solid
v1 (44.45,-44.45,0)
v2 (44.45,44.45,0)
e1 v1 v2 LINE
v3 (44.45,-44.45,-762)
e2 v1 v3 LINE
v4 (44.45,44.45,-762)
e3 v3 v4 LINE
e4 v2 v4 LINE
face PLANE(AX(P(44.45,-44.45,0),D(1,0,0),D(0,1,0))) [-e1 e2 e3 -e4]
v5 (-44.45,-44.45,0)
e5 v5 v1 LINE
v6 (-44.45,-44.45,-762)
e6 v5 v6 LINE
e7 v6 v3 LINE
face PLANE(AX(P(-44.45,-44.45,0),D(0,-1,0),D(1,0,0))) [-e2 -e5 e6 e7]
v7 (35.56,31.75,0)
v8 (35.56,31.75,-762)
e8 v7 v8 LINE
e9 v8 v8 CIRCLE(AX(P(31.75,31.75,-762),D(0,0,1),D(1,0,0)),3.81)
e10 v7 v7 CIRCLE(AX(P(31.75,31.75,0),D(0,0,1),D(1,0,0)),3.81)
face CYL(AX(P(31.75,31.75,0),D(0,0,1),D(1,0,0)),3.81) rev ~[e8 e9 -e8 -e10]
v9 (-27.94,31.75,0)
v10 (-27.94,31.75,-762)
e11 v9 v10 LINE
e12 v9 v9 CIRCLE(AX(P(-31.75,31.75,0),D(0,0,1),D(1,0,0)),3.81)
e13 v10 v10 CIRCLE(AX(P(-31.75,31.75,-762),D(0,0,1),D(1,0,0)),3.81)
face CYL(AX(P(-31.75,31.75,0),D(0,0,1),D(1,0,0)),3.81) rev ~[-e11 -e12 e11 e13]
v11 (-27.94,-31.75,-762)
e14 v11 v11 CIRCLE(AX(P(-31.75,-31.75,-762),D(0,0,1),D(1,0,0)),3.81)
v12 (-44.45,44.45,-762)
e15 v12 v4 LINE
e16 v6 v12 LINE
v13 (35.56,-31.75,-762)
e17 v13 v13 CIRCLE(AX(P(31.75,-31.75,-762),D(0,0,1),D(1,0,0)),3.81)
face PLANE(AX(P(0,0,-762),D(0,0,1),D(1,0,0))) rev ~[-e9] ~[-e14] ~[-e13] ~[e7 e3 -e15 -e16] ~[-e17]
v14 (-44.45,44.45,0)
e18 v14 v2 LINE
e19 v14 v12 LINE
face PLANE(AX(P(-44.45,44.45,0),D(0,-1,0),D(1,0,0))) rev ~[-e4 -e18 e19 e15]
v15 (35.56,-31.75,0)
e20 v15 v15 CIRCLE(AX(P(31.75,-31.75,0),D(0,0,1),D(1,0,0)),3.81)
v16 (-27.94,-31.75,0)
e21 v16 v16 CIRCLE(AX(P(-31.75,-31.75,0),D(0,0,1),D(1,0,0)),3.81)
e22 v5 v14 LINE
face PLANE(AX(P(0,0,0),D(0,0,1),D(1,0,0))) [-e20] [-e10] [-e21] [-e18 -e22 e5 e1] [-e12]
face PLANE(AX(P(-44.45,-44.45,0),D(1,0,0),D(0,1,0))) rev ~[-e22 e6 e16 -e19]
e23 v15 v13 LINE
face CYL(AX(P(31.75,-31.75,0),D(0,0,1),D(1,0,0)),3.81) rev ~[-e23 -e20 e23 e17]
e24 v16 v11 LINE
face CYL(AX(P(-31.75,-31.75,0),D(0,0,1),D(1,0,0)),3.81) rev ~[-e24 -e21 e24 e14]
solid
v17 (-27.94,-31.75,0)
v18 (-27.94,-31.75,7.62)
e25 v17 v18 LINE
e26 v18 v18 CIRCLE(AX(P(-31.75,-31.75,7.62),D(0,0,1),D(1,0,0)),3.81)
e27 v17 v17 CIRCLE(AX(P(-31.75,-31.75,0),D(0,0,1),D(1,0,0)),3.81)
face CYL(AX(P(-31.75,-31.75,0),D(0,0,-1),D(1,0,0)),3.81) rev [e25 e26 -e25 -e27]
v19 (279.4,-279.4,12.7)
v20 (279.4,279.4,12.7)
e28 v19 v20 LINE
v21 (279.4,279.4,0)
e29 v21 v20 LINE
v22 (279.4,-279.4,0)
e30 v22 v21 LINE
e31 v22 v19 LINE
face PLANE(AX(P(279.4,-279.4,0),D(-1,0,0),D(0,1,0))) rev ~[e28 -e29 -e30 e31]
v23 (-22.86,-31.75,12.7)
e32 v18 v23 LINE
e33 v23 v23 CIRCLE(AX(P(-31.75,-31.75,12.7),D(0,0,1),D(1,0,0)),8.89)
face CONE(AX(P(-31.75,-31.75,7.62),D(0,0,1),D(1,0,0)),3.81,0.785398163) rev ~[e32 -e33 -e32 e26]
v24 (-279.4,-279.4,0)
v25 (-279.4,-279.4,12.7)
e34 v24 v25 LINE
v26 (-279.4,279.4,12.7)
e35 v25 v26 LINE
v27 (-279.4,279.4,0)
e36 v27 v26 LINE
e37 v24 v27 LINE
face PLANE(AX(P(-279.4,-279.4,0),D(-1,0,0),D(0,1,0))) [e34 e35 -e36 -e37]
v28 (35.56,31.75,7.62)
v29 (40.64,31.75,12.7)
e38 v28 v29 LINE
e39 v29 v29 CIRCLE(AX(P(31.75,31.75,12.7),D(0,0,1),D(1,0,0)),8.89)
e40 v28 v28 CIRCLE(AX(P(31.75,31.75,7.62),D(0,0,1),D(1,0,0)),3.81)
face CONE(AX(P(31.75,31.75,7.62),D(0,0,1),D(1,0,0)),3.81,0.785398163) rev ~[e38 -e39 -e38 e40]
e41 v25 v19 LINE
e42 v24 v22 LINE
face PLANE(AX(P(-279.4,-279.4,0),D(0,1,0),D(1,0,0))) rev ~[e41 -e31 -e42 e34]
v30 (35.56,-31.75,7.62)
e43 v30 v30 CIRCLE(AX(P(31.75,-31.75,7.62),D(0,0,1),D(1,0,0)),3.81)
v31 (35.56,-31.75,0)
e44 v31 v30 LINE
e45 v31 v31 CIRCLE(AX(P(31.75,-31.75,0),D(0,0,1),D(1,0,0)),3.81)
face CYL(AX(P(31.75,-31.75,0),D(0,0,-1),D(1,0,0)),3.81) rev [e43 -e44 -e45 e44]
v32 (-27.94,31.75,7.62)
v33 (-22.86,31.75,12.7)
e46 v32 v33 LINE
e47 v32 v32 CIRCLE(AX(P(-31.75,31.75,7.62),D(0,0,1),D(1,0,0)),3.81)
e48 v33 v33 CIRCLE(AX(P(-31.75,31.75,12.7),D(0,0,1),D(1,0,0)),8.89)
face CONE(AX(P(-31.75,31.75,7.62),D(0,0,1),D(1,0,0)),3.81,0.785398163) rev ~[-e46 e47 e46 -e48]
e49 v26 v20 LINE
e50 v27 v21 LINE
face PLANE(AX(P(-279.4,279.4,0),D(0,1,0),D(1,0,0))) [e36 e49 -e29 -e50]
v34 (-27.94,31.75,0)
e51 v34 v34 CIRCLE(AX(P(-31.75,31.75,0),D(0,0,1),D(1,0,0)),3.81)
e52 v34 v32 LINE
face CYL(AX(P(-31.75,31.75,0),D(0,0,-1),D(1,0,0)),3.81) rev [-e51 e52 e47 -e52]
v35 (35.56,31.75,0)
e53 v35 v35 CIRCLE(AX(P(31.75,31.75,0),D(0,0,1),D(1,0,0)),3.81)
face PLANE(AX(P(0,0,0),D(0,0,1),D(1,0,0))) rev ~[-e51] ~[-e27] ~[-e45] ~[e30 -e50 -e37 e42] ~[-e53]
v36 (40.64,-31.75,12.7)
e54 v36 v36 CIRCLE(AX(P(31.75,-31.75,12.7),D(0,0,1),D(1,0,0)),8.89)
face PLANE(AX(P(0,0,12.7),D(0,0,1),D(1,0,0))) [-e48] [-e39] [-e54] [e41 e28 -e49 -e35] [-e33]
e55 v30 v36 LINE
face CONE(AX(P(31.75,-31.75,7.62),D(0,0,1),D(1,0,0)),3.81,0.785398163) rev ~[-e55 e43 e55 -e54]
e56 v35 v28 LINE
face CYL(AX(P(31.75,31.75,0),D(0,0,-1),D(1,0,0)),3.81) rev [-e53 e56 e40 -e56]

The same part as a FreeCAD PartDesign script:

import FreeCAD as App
import Part
import Sketcher
Q = App.Units.Quantity


def edges_at(feature, points):
    """Names of the edges that pass closest to the given points."""
    edges = feature.Shape.Edges
    near = lambda p: min(range(len(edges)), key=lambda i: edges[i].distToShape(Part.Vertex(*p))[0])
    return sorted({f"Edge{near(p) + 1}" for p in points})

doc = App.newDocument("Part")
body = doc.addObject("PartDesign::Body", "Body")

sketch1 = body.newObject("Sketcher::SketchObject", "Sketch")
sketch1.AttachmentSupport = (doc.getObject("XY_Plane"), [""])
sketch1.MapMode = "FlatFace"
sketch1.addGeometry([
    Part.LineSegment(App.Vector(-279.4, 279.4, 0), App.Vector(-279.4, -279.4, 0)),
    Part.LineSegment(App.Vector(-279.4, -279.4, 0), App.Vector(279.4, -279.4, 0)),
    Part.LineSegment(App.Vector(279.4, -279.4, 0), App.Vector(279.4, 279.4, 0)),
    Part.LineSegment(App.Vector(279.4, 279.4, 0), App.Vector(-279.4, 279.4, 0)),
    Part.Circle(App.Vector(-31.75, -31.75, 0), App.Vector(0, 0, 1), 3.81),
    Part.Circle(App.Vector(31.75, -31.75, 0), App.Vector(0, 0, 1), 3.81),
    Part.Circle(App.Vector(-31.75, 31.75, 0), App.Vector(0, 0, 1), 3.81),
    Part.Circle(App.Vector(31.75, 31.75, 0), App.Vector(0, 0, 1), 3.81),
], False)
sketch1.addConstraint([
    Sketcher.Constraint("Coincident", 0, 2, 1, 1),
    Sketcher.Constraint("Coincident", 1, 2, 2, 1),
    Sketcher.Constraint("Coincident", 2, 2, 3, 1),
    Sketcher.Constraint("Coincident", 3, 2, 0, 1),
    Sketcher.Constraint("Vertical", 0),
    Sketcher.Constraint("Horizontal", 1),
    Sketcher.Constraint("Vertical", 2),
    Sketcher.Constraint("Horizontal", 3),
    Sketcher.Constraint("Equal", 4, 5),
    Sketcher.Constraint("Equal", 5, 6),
    Sketcher.Constraint("Equal", 6, 7),
    Sketcher.Constraint("Symmetric", 5, 3, 6, 3, -1, 1),
    Sketcher.Constraint("Symmetric", 4, 3, 7, 3, -1, 1),
    Sketcher.Constraint("Symmetric", 0, 2, 2, 2, -1, 1),
    Sketcher.Constraint("Symmetric", 4, 3, 5, 3, -2),
    Sketcher.Constraint("Equal", 3, 0),
    Sketcher.Constraint("Diameter", 4, Q("0.3 in")),
    Sketcher.Constraint("DistanceX", 1, 1, 1, 2, Q("22 in")),
    Sketcher.Constraint("DistanceX", 4, 3, 5, 3, Q("2.5 in")),
    Sketcher.Constraint("DistanceY", 4, 3, 6, 3, Q("2.5 in")),
])
pad1 = body.newObject("PartDesign::Pad", "Pad")
pad1.Profile = sketch1
pad1.Length = Q("0.5 in")
doc.recompute()

chamfer = body.newObject("PartDesign::Chamfer", "Chamfer")
chamfer.Base = (pad1, edges_at(pad1, [
    (-35.56, -31.75, 12.7),
    (27.94, -31.75, 12.7),
    (27.94, 31.75, 12.7),
    (-35.56, 31.75, 12.7),
]))
chamfer.Size = Q("0.2 in")
body2 = doc.addObject("PartDesign::Body", "Body001")

sketch2 = body2.newObject("Sketcher::SketchObject", "Sketch001")
sketch2.AttachmentSupport = (doc.getObject("XY_Plane001"), [""])
sketch2.MapMode = "FlatFace"
sketch2.addGeometry([
    Part.LineSegment(App.Vector(-44.45, 44.45, 0), App.Vector(-44.45, -44.45, 0)),
    Part.LineSegment(App.Vector(-44.45, -44.45, 0), App.Vector(44.45, -44.45, 0)),
    Part.LineSegment(App.Vector(44.45, -44.45, 0), App.Vector(44.45, 44.45, 0)),
    Part.LineSegment(App.Vector(44.45, 44.45, 0), App.Vector(-44.45, 44.45, 0)),
    Part.Circle(App.Vector(-31.75, -31.75, 0), App.Vector(0, 0, 1), 3.81),
    Part.Circle(App.Vector(31.75, -31.75, 0), App.Vector(0, 0, 1), 3.81),
    Part.Circle(App.Vector(-31.75, 31.75, 0), App.Vector(0, 0, 1), 3.81),
    Part.Circle(App.Vector(31.75, 31.75, 0), App.Vector(0, 0, 1), 3.81),
], False)
sketch2.addConstraint([
    Sketcher.Constraint("Coincident", 0, 2, 1, 1),
    Sketcher.Constraint("Coincident", 1, 2, 2, 1),
    Sketcher.Constraint("Coincident", 2, 2, 3, 1),
    Sketcher.Constraint("Coincident", 3, 2, 0, 1),
    Sketcher.Constraint("Vertical", 0),
    Sketcher.Constraint("Horizontal", 1),
    Sketcher.Constraint("Vertical", 2),
    Sketcher.Constraint("Horizontal", 3),
    Sketcher.Constraint("Equal", 4, 5),
    Sketcher.Constraint("Equal", 5, 6),
    Sketcher.Constraint("Equal", 6, 7),
    Sketcher.Constraint("Symmetric", 5, 3, 6, 3, -1, 1),
    Sketcher.Constraint("Symmetric", 4, 3, 7, 3, -1, 1),
    Sketcher.Constraint("Symmetric", 0, 2, 2, 2, -1, 1),
    Sketcher.Constraint("Symmetric", 4, 3, 5, 3, -2),
    Sketcher.Constraint("Equal", 3, 0),
    Sketcher.Constraint("Diameter", 4, Q("0.3 in")),
    Sketcher.Constraint("DistanceX", 1, 1, 1, 2, Q("3.5 in")),
    Sketcher.Constraint("DistanceX", 0, 2, 5, 3, Q("3 in")),
    Sketcher.Constraint("DistanceY", 0, 2, 6, 3, Q("3 in")),
])
pad2 = body2.newObject("PartDesign::Pad", "Pad001")
pad2.Profile = sketch2
pad2.Length = Q("30 in")
pad2.Reversed = True

doc.recompute()
